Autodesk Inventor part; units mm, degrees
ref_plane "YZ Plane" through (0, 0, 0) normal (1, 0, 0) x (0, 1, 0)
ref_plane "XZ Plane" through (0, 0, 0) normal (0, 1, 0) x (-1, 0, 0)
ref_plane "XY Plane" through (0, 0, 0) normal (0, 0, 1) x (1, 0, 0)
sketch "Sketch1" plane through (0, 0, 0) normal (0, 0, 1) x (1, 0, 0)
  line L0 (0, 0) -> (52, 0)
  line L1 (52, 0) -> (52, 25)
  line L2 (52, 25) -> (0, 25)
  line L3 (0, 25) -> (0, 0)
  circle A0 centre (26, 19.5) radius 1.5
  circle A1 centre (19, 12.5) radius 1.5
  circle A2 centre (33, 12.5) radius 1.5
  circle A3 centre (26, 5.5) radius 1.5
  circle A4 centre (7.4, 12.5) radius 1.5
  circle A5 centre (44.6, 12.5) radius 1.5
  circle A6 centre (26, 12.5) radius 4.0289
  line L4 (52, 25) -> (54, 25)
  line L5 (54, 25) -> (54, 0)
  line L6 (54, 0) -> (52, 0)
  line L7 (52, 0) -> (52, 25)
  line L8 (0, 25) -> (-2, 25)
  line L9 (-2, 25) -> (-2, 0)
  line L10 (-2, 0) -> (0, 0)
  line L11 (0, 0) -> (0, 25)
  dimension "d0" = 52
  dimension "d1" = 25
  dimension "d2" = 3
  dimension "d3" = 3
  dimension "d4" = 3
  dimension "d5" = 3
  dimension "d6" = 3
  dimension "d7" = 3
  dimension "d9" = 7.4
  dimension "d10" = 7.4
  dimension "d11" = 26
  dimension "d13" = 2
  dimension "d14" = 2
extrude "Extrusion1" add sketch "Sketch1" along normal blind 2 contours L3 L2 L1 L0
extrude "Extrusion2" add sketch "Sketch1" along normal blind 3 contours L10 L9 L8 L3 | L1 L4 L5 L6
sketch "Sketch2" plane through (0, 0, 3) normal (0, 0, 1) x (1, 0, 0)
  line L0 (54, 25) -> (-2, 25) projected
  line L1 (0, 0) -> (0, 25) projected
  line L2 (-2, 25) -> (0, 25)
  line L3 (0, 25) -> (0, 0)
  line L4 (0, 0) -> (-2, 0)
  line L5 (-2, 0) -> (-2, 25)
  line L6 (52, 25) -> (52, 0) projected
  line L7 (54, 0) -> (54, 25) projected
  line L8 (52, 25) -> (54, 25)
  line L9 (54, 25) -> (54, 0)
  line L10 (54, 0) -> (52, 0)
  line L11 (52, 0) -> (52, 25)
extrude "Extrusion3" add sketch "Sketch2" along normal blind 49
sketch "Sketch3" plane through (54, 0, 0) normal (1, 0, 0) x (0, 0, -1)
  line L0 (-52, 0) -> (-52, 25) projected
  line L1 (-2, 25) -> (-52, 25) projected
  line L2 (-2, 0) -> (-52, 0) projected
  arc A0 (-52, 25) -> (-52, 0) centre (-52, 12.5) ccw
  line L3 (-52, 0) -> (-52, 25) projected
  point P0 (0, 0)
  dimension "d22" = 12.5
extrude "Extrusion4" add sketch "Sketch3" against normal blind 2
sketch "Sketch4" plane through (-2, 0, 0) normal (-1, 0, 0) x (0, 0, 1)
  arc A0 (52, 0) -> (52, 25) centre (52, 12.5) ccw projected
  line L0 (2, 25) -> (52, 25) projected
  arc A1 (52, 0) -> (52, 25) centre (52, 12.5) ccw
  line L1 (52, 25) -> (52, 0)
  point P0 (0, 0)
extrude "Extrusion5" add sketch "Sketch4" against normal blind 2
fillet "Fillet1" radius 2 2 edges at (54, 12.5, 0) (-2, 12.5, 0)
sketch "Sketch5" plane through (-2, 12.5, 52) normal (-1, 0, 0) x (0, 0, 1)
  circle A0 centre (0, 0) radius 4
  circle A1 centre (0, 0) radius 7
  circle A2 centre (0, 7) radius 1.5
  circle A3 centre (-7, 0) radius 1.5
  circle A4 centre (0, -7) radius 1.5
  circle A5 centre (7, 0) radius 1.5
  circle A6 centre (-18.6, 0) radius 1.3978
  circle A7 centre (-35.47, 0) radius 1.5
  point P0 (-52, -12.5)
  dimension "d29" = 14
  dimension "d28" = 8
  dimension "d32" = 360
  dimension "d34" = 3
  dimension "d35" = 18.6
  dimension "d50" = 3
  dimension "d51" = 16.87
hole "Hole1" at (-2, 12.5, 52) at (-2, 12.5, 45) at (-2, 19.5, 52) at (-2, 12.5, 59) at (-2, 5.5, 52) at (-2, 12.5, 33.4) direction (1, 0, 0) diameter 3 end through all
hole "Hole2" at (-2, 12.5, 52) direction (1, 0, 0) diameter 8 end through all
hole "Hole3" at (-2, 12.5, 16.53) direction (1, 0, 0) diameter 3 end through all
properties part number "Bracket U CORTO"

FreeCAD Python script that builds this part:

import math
import FreeCAD as App
import Part
import Sketcher
Q = App.Units.Quantity


def edges_at(feature, points):
    """Names of the edges that pass closest to the given points."""
    edges = feature.Shape.Edges
    near = lambda p: min(range(len(edges)), key=lambda i: edges[i].distToShape(Part.Vertex(*p))[0])
    return sorted({f"Edge{near(p) + 1}" for p in points})


def add_polygon(sketch, points):
    """Adds a closed chain of lines whose ends are joined by coincident constraints."""
    first, n = sketch.GeometryCount, len(points)
    for a, b in zip(points, points[1:] + points[:1]):
        sketch.addGeometry(Part.LineSegment(App.Vector(*a, 0), App.Vector(*b, 0)), False)
    for i in range(n):
        sketch.addConstraint(Sketcher.Constraint("Coincident", first + i, 2, first + (i + 1) % n, 1))

doc = App.newDocument("Part")
body = doc.addObject("PartDesign::Body", "Body")

sketch1 = body.newObject("Sketcher::SketchObject", "Sketch")
sketch1.AttachmentSupport = (doc.getObject("XY_Plane"), [""])
sketch1.MapMode = "FlatFace"
add_polygon(sketch1, [(0, 25), (0, 0), (52, 0), (52, 25)])
sketch1.addGeometry(Part.Circle(App.Vector(26, 5.5, 0), App.Vector(0, 0, 1), 1.5), False)
sketch1.addGeometry(Part.Circle(App.Vector(7.4, 12.5, 0), App.Vector(0, 0, 1), 1.5), False)
sketch1.addGeometry(Part.Circle(App.Vector(19, 12.5, 0), App.Vector(0, 0, 1), 1.5), False)
sketch1.addGeometry(Part.Circle(App.Vector(26, 12.5, 0), App.Vector(0, 0, 1), 4), False)
sketch1.addGeometry(Part.Circle(App.Vector(33, 12.5, 0), App.Vector(0, 0, 1), 1.5), False)
sketch1.addGeometry(Part.Circle(App.Vector(44.6, 12.5, 0), App.Vector(0, 0, 1), 1.5), False)
sketch1.addGeometry(Part.Circle(App.Vector(26, 19.5, 0), App.Vector(0, 0, 1), 1.5), False)
sketch1.addConstraint([
    Sketcher.Constraint("Vertical", 0),
    Sketcher.Constraint("Horizontal", 1),
    Sketcher.Constraint("Vertical", 2),
    Sketcher.Constraint("Horizontal", 3),
    Sketcher.Constraint("Coincident", 0, 2, -1, 1),
    Sketcher.Constraint("Equal", 4, 5),
    Sketcher.Constraint("Equal", 5, 6),
    Sketcher.Constraint("Equal", 6, 8),
    Sketcher.Constraint("Equal", 8, 9),
    Sketcher.Constraint("Equal", 9, 10),
    Sketcher.Constraint("Horizontal", 5, 3, 6, 3),
    Sketcher.Constraint("Horizontal", 6, 3, 7, 3),
    Sketcher.Constraint("Horizontal", 7, 3, 8, 3),
    Sketcher.Constraint("Horizontal", 8, 3, 9, 3),
    Sketcher.Constraint("Vertical", 4, 3, 7, 3),
    Sketcher.Constraint("Vertical", 7, 3, 10, 3),
    Sketcher.Constraint("Diameter", 4, Q("3 mm")),
    Sketcher.Constraint("DistanceX", 1, 1, 1, 2, Q("52 mm")),
    Sketcher.Constraint("DistanceY", 0, 2, 0, 1, Q("25 mm")),
    Sketcher.Constraint("DistanceX", -1, 1, 4, 3, Q("26 mm")),
    Sketcher.Constraint("DistanceX", -1, 1, 5, 3, Q("7.4 mm")),
    Sketcher.Constraint("DistanceX", 9, 3, 1, 2, Q("7.4 mm")),
    Sketcher.Constraint("DistanceX", -1, 1, 6, 3, Q("19 mm")),
    Sketcher.Constraint("DistanceX", -1, 1, 8, 3, Q("33 mm")),
    Sketcher.Constraint("DistanceY", 4, 3, 5, 3, Q("7 mm")),
    Sketcher.Constraint("DistanceY", 7, 3, 10, 3, Q("7 mm")),
    Sketcher.Constraint("Diameter", 7, Q("8.0578 mm")),
    Sketcher.Constraint("DistanceY", -1, 1, 4, 3, Q("5.5 mm")),
])
pad1 = body.newObject("PartDesign::Pad", "Pad")
pad1.Profile = sketch1
pad1.Length = 2

sketch2 = body.newObject("Sketcher::SketchObject", "Sketch001")
sketch2.AttachmentSupport = (doc.getObject("XY_Plane"), [""])
sketch2.MapMode = "FlatFace"
add_polygon(sketch2, [(-2, 0), (0, 0), (0, 25), (-2, 25)])
add_polygon(sketch2, [(52, 25), (52, 0), (54, 0), (54, 25)])
sketch2.addConstraint([
    Sketcher.Constraint("Horizontal", 0),
    Sketcher.Constraint("Vertical", 1),
    Sketcher.Constraint("Horizontal", 2),
    Sketcher.Constraint("Vertical", 3),
    Sketcher.Constraint("Vertical", 4),
    Sketcher.Constraint("Horizontal", 5),
    Sketcher.Constraint("Vertical", 6),
    Sketcher.Constraint("Horizontal", 7),
    Sketcher.Constraint("Coincident", 0, 2, -1, 1),
    Sketcher.Constraint("PointOnObject", 4, 2, -1),
    Sketcher.Constraint("Horizontal", 2, 2, 6, 2),
    Sketcher.Constraint("Equal", 2, 5),
    Sketcher.Constraint("DistanceX", 0, 1, 0, 2, Q("2 mm")),
    Sketcher.Constraint("DistanceY", 1, 1, 1, 2, Q("25 mm")),
    Sketcher.Constraint("DistanceX", -1, 1, 4, 2, Q("52 mm")),
])
pad2 = body.newObject("PartDesign::Pad", "Pad001")
pad2.Profile = sketch2
pad2.Length = 3

sketch3 = body.newObject("Sketcher::SketchObject", "Sketch002")
sketch3.AttachmentSupport = (doc.getObject("XY_Plane"), [""])
sketch3.MapMode = "FlatFace"
sketch3.AttachmentOffset = App.Placement(App.Vector(0, 0, 3), App.Rotation())
add_polygon(sketch3, [(54, 0), (54, 25), (52, 25), (52, 0)])
add_polygon(sketch3, [(0, 0), (0, 25), (-2, 25), (-2, 0)])
sketch3.addConstraint([
    Sketcher.Constraint("Vertical", 0),
    Sketcher.Constraint("Horizontal", 1),
    Sketcher.Constraint("Vertical", 2),
    Sketcher.Constraint("Horizontal", 3),
    Sketcher.Constraint("Vertical", 4),
    Sketcher.Constraint("Horizontal", 5),
    Sketcher.Constraint("Vertical", 6),
    Sketcher.Constraint("Horizontal", 7),
    Sketcher.Constraint("Coincident", 7, 2, -1, 1),
    Sketcher.Constraint("PointOnObject", 2, 2, -1),
    Sketcher.Constraint("Horizontal", 1, 2, 4, 2),
    Sketcher.Constraint("Equal", 3, 5),
    Sketcher.Constraint("DistanceX", 1, 2, 1, 1, Q("2 mm")),
    Sketcher.Constraint("DistanceY", 0, 1, 0, 2, Q("25 mm")),
    Sketcher.Constraint("DistanceX", -1, 1, 0, 2, Q("54 mm")),
])
pad3 = body.newObject("PartDesign::Pad", "Pad002")
pad3.Profile = sketch3
pad3.Length = 49

sketch4 = body.newObject("Sketcher::SketchObject", "Sketch003")
sketch4.AttachmentSupport = (doc.getObject("YZ_Plane"), [""])
sketch4.MapMode = "FlatFace"
sketch4.AttachmentOffset = App.Placement(App.Vector(0, 0, 54), App.Rotation())
sketch4.addGeometry([
    Part.ArcOfCircle(Part.Circle(App.Vector(12, 52, 0), App.Vector(0, 0, 1), 12), math.radians(0), math.radians(180)),
    Part.LineSegment(App.Vector(0, 52, 0), App.Vector(25, 52, 0)),
], False)
sketch4.addConstraint([
    Sketcher.Constraint("Coincident", 0, 1, 1, 2),
    Sketcher.Constraint("Coincident", 1, 1, 0, 2),
    Sketcher.Constraint("Horizontal", 1),
    Sketcher.Constraint("PointOnObject", 1, 1, -2),
    Sketcher.Constraint("Radius", 0, Q("12.5 mm")),
    Sketcher.Constraint("DistanceY", -1, 1, 0, 3, Q("52 mm")),
    Sketcher.Constraint("DistanceY", -1, 1, 0, 1, Q("52 mm")),
])
pad4 = body.newObject("PartDesign::Pad", "Pad003")
pad4.Profile = sketch4
pad4.Length = 2
pad4.Reversed = True

sketch5 = body.newObject("Sketcher::SketchObject", "Sketch004")
sketch5.AttachmentSupport = (doc.getObject("YZ_Plane"), [""])
sketch5.MapMode = "FlatFace"
sketch5.AttachmentOffset = App.Placement(App.Vector(0, 0, -2), App.Rotation())
sketch5.addGeometry([
    Part.LineSegment(App.Vector(25, 52, 0), App.Vector(0, 52, 0)),
    Part.ArcOfCircle(Part.Circle(App.Vector(12, 52, 0), App.Vector(0, 0, 1), 12), math.radians(0), math.radians(180)),
], False)
sketch5.addConstraint([
    Sketcher.Constraint("Coincident", 0, 1, 1, 1),
    Sketcher.Constraint("Coincident", 1, 2, 0, 2),
    Sketcher.Constraint("Horizontal", 0),
    Sketcher.Constraint("PointOnObject", 1, 2, -2),
    Sketcher.Constraint("Horizontal", 1, 3, 0, 1),
    Sketcher.Constraint("Radius", 1, Q("12.5 mm")),
    Sketcher.Constraint("DistanceY", -1, 1, 1, 3, Q("52 mm")),
])
pad5 = body.newObject("PartDesign::Pad", "Pad004")
pad5.Profile = sketch5
pad5.Length = 2
doc.recompute()

fillet = body.newObject("PartDesign::Fillet", "Fillet")
fillet.Base = (pad5, edges_at(pad5, [(54, 12.5, 0), (-2, 12.5, 0)]))
fillet.Radius = 2

sketch6 = body.newObject("Sketcher::SketchObject", "Sketch005")
sketch6.AttachmentSupport = (doc.getObject("YZ_Plane"), [""])
sketch6.MapMode = "FlatFace"
sketch6.AttachmentOffset = App.Placement(App.Vector(0, 0, -2), App.Rotation())
sketch6.addGeometry([
    Part.Circle(App.Vector(12.5, 52, 0), App.Vector(0, 0, 1), 1.5),
    Part.Circle(App.Vector(12.5, 45, 0), App.Vector(0, 0, 1), 1.5),
    Part.Circle(App.Vector(19.5, 52, 0), App.Vector(0, 0, 1), 1.5),
    Part.Circle(App.Vector(12.5, 59, 0), App.Vector(0, 0, 1), 1.5),
    Part.Circle(App.Vector(5.5, 52, 0), App.Vector(0, 0, 1), 1.5),
    Part.Circle(App.Vector(12.5, 33.4, 0), App.Vector(0, 0, 1), 1.5),
], False)
sketch6.addConstraint([
    Sketcher.Constraint("Equal", 0, 1),
    Sketcher.Constraint("Equal", 1, 2),
    Sketcher.Constraint("Equal", 2, 3),
    Sketcher.Constraint("Equal", 3, 4),
    Sketcher.Constraint("Equal", 4, 5),
    Sketcher.Constraint("Horizontal", 0, 3, 2, 3),
    Sketcher.Constraint("Horizontal", 2, 3, 4, 3),
    Sketcher.Constraint("Vertical", 0, 3, 1, 3),
    Sketcher.Constraint("Vertical", 1, 3, 3, 3),
    Sketcher.Constraint("Vertical", 3, 3, 5, 3),
    Sketcher.Constraint("Diameter", 0, Q("3 mm")),
    Sketcher.Constraint("DistanceY", -1, 1, 0, 3, Q("52 mm")),
    Sketcher.Constraint("DistanceY", -1, 1, 1, 3, Q("45 mm")),
    Sketcher.Constraint("DistanceY", -1, 1, 3, 3, Q("59 mm")),
    Sketcher.Constraint("DistanceX", 0, 3, 2, 3, Q("7 mm")),
    Sketcher.Constraint("DistanceX", 4, 3, 0, 3, Q("7 mm")),
    Sketcher.Constraint("DistanceX", -1, 1, 0, 3, Q("12.5 mm")),
    Sketcher.Constraint("DistanceY", -1, 1, 5, 3, Q("33.4 mm")),
])
doc.recompute()
hole = body.newObject("PartDesign::Hole", "Hole")
hole.Profile = sketch6
hole.ThreadType = "None"
hole.Diameter = 3
hole.DepthType = "ThroughAll"
hole.Reversed = True

sketch7 = body.newObject("Sketcher::SketchObject", "Sketch006")
sketch7.AttachmentSupport = (doc.getObject("YZ_Plane"), [""])
sketch7.MapMode = "FlatFace"
sketch7.AttachmentOffset = App.Placement(App.Vector(0, 0, -2), App.Rotation())
sketch7.addGeometry(Part.Circle(App.Vector(12.5, 52, 0), App.Vector(0, 0, 1), 4), False)
sketch7.addConstraint([
    Sketcher.Constraint("Diameter", 0, Q("8 mm")),
    Sketcher.Constraint("DistanceY", -1, 1, 0, 3, Q("52 mm")),
    Sketcher.Constraint("DistanceX", -1, 1, 0, 3, Q("12.5 mm")),
])
doc.recompute()
hole2 = body.newObject("PartDesign::Hole", "Hole001")
hole2.Profile = sketch7
hole2.ThreadType = "None"
hole2.Diameter = 8
hole2.DepthType = "ThroughAll"
hole2.Reversed = True

sketch8 = body.newObject("Sketcher::SketchObject", "Sketch007")
sketch8.AttachmentSupport = (doc.getObject("YZ_Plane"), [""])
sketch8.MapMode = "FlatFace"
sketch8.AttachmentOffset = App.Placement(App.Vector(0, 0, -2), App.Rotation())
sketch8.addGeometry(Part.Circle(App.Vector(12.5, 16.5, 0), App.Vector(0, 0, 1), 1.5), False)
sketch8.addConstraint([
    Sketcher.Constraint("Diameter", 0, Q("3 mm")),
    Sketcher.Constraint("DistanceX", -1, 1, 0, 3, Q("12.5 mm")),
    Sketcher.Constraint("DistanceY", -1, 1, 0, 3, Q("16.53 mm")),
])
doc.recompute()
hole3 = body.newObject("PartDesign::Hole", "Hole002")
hole3.Profile = sketch8
hole3.ThreadType = "None"
hole3.Diameter = 3
hole3.DepthType = "ThroughAll"
hole3.Reversed = True

doc.recompute()
